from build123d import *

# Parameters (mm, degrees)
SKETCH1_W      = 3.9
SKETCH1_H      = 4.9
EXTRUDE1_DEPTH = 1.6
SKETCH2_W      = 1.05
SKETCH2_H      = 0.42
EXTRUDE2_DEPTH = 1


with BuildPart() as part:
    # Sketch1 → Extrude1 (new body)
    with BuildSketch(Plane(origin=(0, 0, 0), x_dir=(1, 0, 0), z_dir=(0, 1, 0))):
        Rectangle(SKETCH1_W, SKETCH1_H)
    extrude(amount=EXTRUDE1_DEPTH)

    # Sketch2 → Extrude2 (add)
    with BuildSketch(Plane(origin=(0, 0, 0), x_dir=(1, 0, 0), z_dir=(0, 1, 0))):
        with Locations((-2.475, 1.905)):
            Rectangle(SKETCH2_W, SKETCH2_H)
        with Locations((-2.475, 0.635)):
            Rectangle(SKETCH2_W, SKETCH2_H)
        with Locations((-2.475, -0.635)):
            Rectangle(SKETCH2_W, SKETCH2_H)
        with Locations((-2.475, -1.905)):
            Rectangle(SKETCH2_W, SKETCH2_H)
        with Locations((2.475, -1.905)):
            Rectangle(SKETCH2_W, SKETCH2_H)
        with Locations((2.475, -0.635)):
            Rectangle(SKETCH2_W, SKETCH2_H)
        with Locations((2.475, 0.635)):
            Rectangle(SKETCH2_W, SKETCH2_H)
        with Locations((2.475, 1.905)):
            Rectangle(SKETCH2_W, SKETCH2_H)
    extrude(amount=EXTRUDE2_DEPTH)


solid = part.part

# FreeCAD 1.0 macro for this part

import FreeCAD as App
import Part
import Sketcher
Q = App.Units.Quantity


def add_polygon(sketch, points):
    """Adds a closed chain of lines whose ends are joined by coincident constraints."""
    first, n = sketch.GeometryCount, len(points)
    for a, b in zip(points, points[1:] + points[:1]):
        sketch.addGeometry(Part.LineSegment(App.Vector(*a, 0), App.Vector(*b, 0)), False)
    for i in range(n):
        sketch.addConstraint(Sketcher.Constraint("Coincident", first + i, 2, first + (i + 1) % n, 1))

doc = App.newDocument("Part")
body = doc.addObject("PartDesign::Body", "Body")

sketch1 = body.newObject("Sketcher::SketchObject", "Sketch")
sketch1.AttachmentSupport = (doc.getObject("XZ_Plane"), [""])
sketch1.MapMode = "FlatFace"
add_polygon(sketch1, [(-1.9, -2.5), (-1.9, 2.5), (1.9, 2.5), (1.9, -2.5)])
sketch1.addConstraint([
    Sketcher.Constraint("Vertical", 0),
    Sketcher.Constraint("Horizontal", 1),
    Sketcher.Constraint("Vertical", 2),
    Sketcher.Constraint("Horizontal", 3),
    Sketcher.Constraint("Symmetric", 0, 2, 2, 2, -1, 1),
    Sketcher.Constraint("DistanceX", 1, 1, 1, 2, Q("3.9 mm")),
    Sketcher.Constraint("DistanceY", 0, 1, 0, 2, Q("4.9 mm")),
])
pad1 = body.newObject("PartDesign::Pad", "Pad")
pad1.Profile = sketch1
pad1.Length = 1.6
pad1.Reversed = True

sketch2 = body.newObject("Sketcher::SketchObject", "Sketch001")
sketch2.AttachmentSupport = (doc.getObject("XZ_Plane"), [""])
sketch2.MapMode = "FlatFace"
add_polygon(sketch2, [(-3, -2.12), (-3, -1.7), (-1.95, -1.7), (-1.95, -2.12)])
add_polygon(sketch2, [(-3, -0.84), (-3, -0.42), (-1.95, -0.42), (-1.95, -0.84)])
add_polygon(sketch2, [(-3, 0.42), (-3, 0.84), (-1.95, 0.84), (-1.95, 0.42)])
add_polygon(sketch2, [(-3, 1.7), (-3, 2.12), (-1.95, 2.12), (-1.95, 1.7)])
add_polygon(sketch2, [(1.95, 1.7), (1.95, 2.12), (3, 2.12), (3, 1.7)])
add_polygon(sketch2, [(1.95, 0.42), (1.95, 0.84), (3, 0.84), (3, 0.42)])
add_polygon(sketch2, [(1.95, -0.84), (1.95, -0.42), (3, -0.42), (3, -0.84)])
add_polygon(sketch2, [(1.95, -2.12), (1.95, -1.7), (3, -1.7), (3, -2.12)])
sketch2.addConstraint([
    Sketcher.Constraint("Vertical", 0),
    Sketcher.Constraint("Horizontal", 1),
    Sketcher.Constraint("Vertical", 2),
    Sketcher.Constraint("Horizontal", 3),
    Sketcher.Constraint("Vertical", 4),
    Sketcher.Constraint("Horizontal", 5),
    Sketcher.Constraint("Vertical", 6),
    Sketcher.Constraint("Horizontal", 7),
    Sketcher.Constraint("Vertical", 8),
    Sketcher.Constraint("Horizontal", 9),
    Sketcher.Constraint("Vertical", 10),
    Sketcher.Constraint("Horizontal", 11),
    Sketcher.Constraint("Vertical", 12),
    Sketcher.Constraint("Horizontal", 13),
    Sketcher.Constraint("Vertical", 14),
    Sketcher.Constraint("Horizontal", 15),
    Sketcher.Constraint("Vertical", 16),
    Sketcher.Constraint("Horizontal", 17),
    Sketcher.Constraint("Vertical", 18),
    Sketcher.Constraint("Horizontal", 19),
    Sketcher.Constraint("Vertical", 20),
    Sketcher.Constraint("Horizontal", 21),
    Sketcher.Constraint("Vertical", 22),
    Sketcher.Constraint("Horizontal", 23),
    Sketcher.Constraint("Vertical", 24),
    Sketcher.Constraint("Horizontal", 25),
    Sketcher.Constraint("Vertical", 26),
    Sketcher.Constraint("Horizontal", 27),
    Sketcher.Constraint("Vertical", 28),
    Sketcher.Constraint("Horizontal", 29),
    Sketcher.Constraint("Vertical", 30),
    Sketcher.Constraint("Horizontal", 31),
    Sketcher.Constraint("Symmetric", 2, 2, 16, 2, -1, 1),
    Sketcher.Constraint("Symmetric", 0, 2, 18, 2, -1, 1),
    Sketcher.Constraint("Symmetric", 6, 2, 20, 2, -1, 1),
    Sketcher.Constraint("Symmetric", 4, 2, 22, 2, -1, 1),
    Sketcher.Constraint("Symmetric", 10, 2, 24, 2, -1, 1),
    Sketcher.Constraint("Symmetric", 8, 2, 26, 2, -1, 1),
    Sketcher.Constraint("Symmetric", 14, 2, 28, 2, -1, 1),
    Sketcher.Constraint("Symmetric", 12, 2, 30, 2, -1, 1),
    Sketcher.Constraint("Symmetric", 13, 2, 16, 2, -2),
    Sketcher.Constraint("Symmetric", 15, 2, 18, 2, -2),
    Sketcher.Constraint("Symmetric", 9, 2, 20, 2, -2),
    Sketcher.Constraint("Symmetric", 11, 2, 22, 2, -2),
    Sketcher.Constraint("Vertical", 3, 2, 4, 2),
    Sketcher.Constraint("Vertical", 2, 2, 5, 2),
    Sketcher.Constraint("Equal", 2, 4),
    Sketcher.Constraint("DistanceX", 0, 2, -1, 1, Q("3 mm")),
    Sketcher.Constraint("DistanceX", 1, 1, 1, 2, Q("1.05 mm")),
    Sketcher.Constraint("DistanceY", 0, 1, 0, 2, Q("0.42 mm")),
    Sketcher.Constraint("DistanceY", 0, 2, 4, 2, Q("1.27 mm")),
    Sketcher.Constraint("DistanceY", 4, 2, 8, 2, Q("1.27 mm")),
])
pad2 = body.newObject("PartDesign::Pad", "Pad001")
pad2.Profile = sketch2
pad2.Length = 1
pad2.Reversed = True

doc.recompute()
